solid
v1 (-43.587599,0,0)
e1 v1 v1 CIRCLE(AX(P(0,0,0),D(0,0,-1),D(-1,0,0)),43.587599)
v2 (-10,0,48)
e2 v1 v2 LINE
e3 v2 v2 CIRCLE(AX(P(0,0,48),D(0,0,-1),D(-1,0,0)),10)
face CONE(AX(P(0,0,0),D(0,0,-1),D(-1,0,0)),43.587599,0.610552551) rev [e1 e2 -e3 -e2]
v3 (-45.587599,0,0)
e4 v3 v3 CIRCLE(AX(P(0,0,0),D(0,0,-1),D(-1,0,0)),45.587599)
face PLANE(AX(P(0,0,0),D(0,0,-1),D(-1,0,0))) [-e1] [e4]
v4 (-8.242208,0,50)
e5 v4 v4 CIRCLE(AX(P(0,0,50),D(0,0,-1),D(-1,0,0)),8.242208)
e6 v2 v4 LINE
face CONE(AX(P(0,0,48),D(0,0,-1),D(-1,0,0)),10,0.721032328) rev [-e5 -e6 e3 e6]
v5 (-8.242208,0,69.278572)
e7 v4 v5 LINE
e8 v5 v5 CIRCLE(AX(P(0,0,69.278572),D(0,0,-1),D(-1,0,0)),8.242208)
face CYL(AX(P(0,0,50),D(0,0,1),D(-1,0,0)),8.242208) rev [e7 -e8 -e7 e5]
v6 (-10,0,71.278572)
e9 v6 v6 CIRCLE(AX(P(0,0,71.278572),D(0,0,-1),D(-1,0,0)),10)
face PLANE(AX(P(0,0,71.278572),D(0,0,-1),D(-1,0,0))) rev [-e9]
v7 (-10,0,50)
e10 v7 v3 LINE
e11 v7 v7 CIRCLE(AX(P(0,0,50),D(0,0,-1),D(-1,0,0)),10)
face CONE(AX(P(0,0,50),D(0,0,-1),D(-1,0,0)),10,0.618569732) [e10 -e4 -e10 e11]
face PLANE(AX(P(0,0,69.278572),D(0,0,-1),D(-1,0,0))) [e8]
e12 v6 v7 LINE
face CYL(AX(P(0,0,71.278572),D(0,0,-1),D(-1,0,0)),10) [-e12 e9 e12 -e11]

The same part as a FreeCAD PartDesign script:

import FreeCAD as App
import Part
import Sketcher

V = App.Vector
Q = App.Units.Quantity

doc = App.newDocument("Part")
body = doc.addObject("PartDesign::Body", "Body")

# Sketch on XZ plane
sketch1 = body.newObject("Sketcher::SketchObject", "Sketch")
sketch1.AttachmentSupport = (doc.getObject("XZ_Plane"), [""])
sketch1.MapMode = "FlatFace"
sketch1.addGeometry([
    Part.LineSegment(V(-10, 71.3, 0), V(-10, 50, 0)),  # 0
    Part.LineSegment(V(-10, 50, 0), V(-45.6, 0, 0)),  # 1
    Part.LineSegment(V(-45.6, 0, 0), V(-43.6, 0, 0)),  # 2
    Part.LineSegment(V(-43.6, 0, 0), V(-10, 48, 0)),  # 3
    Part.LineSegment(V(-10, 48, 0), V(-8.2, 50, 0)),  # 4
    Part.LineSegment(V(-8.2, 50, 0), V(-8.2, 69.3, 0)),  # 5
    Part.LineSegment(V(-8.2, 69.3, 0), V(0, 69.3, 0)),  # 6
    Part.LineSegment(V(0, 69.3, 0), V(0, 71.3, 0)),  # 7
    Part.LineSegment(V(0, 71.3, 0), V(-10, 71.3, 0)),  # 8
], False)
sketch1.addConstraint([
    Sketcher.Constraint("Coincident", 0, 2, 1, 1),
    Sketcher.Constraint("Coincident", 1, 2, 2, 1),
    Sketcher.Constraint("Coincident", 2, 2, 3, 1),
    Sketcher.Constraint("Coincident", 3, 2, 4, 1),
    Sketcher.Constraint("Coincident", 4, 2, 5, 1),
    Sketcher.Constraint("Coincident", 5, 2, 6, 1),
    Sketcher.Constraint("Coincident", 6, 2, 7, 1),
    Sketcher.Constraint("Coincident", 7, 2, 8, 1),
    Sketcher.Constraint("Coincident", 8, 2, 0, 1),
    Sketcher.Constraint("Vertical", 0),
    Sketcher.Constraint("Horizontal", 2),
    Sketcher.Constraint("Vertical", 5),
    Sketcher.Constraint("Horizontal", 6),
    Sketcher.Constraint("Vertical", 7),
    Sketcher.Constraint("Horizontal", 8),
    Sketcher.Constraint("PointOnObject", 1, 2, -1),
    Sketcher.Constraint("PointOnObject", 6, 2, -2),
    Sketcher.Constraint("Horizontal", 0, 2, 4, 2),
    Sketcher.Constraint("Vertical", 0, 2, 3, 2),
    Sketcher.Constraint("Equal", 2, 7),
    Sketcher.Constraint("DistanceX", 2, 1, 2, 2, Q("2 mm")),
    Sketcher.Constraint("DistanceX", 8, 2, 8, 1, Q("10 mm")),
    Sketcher.Constraint("DistanceY", -1, 1, 0, 2, Q("50 mm")),
    Sketcher.Constraint("DistanceY", -1, 1, 3, 2, Q("48 mm")),
    Sketcher.Constraint("DistanceY", 0, 2, 0, 1, Q("21.278572 mm")),
    Sketcher.Constraint("DistanceX", 1, 2, -1, 1, Q("45.587599 mm")),
    Sketcher.Constraint("DistanceX", 6, 1, 6, 2, Q("8.242208 mm")),
])
revolution = body.newObject("PartDesign::Revolution", "Revolution")
revolution.Profile = sketch1
revolution.ReferenceAxis = (sketch1, ["V_Axis"])
revolution.Angle = 360

doc.recompute()
